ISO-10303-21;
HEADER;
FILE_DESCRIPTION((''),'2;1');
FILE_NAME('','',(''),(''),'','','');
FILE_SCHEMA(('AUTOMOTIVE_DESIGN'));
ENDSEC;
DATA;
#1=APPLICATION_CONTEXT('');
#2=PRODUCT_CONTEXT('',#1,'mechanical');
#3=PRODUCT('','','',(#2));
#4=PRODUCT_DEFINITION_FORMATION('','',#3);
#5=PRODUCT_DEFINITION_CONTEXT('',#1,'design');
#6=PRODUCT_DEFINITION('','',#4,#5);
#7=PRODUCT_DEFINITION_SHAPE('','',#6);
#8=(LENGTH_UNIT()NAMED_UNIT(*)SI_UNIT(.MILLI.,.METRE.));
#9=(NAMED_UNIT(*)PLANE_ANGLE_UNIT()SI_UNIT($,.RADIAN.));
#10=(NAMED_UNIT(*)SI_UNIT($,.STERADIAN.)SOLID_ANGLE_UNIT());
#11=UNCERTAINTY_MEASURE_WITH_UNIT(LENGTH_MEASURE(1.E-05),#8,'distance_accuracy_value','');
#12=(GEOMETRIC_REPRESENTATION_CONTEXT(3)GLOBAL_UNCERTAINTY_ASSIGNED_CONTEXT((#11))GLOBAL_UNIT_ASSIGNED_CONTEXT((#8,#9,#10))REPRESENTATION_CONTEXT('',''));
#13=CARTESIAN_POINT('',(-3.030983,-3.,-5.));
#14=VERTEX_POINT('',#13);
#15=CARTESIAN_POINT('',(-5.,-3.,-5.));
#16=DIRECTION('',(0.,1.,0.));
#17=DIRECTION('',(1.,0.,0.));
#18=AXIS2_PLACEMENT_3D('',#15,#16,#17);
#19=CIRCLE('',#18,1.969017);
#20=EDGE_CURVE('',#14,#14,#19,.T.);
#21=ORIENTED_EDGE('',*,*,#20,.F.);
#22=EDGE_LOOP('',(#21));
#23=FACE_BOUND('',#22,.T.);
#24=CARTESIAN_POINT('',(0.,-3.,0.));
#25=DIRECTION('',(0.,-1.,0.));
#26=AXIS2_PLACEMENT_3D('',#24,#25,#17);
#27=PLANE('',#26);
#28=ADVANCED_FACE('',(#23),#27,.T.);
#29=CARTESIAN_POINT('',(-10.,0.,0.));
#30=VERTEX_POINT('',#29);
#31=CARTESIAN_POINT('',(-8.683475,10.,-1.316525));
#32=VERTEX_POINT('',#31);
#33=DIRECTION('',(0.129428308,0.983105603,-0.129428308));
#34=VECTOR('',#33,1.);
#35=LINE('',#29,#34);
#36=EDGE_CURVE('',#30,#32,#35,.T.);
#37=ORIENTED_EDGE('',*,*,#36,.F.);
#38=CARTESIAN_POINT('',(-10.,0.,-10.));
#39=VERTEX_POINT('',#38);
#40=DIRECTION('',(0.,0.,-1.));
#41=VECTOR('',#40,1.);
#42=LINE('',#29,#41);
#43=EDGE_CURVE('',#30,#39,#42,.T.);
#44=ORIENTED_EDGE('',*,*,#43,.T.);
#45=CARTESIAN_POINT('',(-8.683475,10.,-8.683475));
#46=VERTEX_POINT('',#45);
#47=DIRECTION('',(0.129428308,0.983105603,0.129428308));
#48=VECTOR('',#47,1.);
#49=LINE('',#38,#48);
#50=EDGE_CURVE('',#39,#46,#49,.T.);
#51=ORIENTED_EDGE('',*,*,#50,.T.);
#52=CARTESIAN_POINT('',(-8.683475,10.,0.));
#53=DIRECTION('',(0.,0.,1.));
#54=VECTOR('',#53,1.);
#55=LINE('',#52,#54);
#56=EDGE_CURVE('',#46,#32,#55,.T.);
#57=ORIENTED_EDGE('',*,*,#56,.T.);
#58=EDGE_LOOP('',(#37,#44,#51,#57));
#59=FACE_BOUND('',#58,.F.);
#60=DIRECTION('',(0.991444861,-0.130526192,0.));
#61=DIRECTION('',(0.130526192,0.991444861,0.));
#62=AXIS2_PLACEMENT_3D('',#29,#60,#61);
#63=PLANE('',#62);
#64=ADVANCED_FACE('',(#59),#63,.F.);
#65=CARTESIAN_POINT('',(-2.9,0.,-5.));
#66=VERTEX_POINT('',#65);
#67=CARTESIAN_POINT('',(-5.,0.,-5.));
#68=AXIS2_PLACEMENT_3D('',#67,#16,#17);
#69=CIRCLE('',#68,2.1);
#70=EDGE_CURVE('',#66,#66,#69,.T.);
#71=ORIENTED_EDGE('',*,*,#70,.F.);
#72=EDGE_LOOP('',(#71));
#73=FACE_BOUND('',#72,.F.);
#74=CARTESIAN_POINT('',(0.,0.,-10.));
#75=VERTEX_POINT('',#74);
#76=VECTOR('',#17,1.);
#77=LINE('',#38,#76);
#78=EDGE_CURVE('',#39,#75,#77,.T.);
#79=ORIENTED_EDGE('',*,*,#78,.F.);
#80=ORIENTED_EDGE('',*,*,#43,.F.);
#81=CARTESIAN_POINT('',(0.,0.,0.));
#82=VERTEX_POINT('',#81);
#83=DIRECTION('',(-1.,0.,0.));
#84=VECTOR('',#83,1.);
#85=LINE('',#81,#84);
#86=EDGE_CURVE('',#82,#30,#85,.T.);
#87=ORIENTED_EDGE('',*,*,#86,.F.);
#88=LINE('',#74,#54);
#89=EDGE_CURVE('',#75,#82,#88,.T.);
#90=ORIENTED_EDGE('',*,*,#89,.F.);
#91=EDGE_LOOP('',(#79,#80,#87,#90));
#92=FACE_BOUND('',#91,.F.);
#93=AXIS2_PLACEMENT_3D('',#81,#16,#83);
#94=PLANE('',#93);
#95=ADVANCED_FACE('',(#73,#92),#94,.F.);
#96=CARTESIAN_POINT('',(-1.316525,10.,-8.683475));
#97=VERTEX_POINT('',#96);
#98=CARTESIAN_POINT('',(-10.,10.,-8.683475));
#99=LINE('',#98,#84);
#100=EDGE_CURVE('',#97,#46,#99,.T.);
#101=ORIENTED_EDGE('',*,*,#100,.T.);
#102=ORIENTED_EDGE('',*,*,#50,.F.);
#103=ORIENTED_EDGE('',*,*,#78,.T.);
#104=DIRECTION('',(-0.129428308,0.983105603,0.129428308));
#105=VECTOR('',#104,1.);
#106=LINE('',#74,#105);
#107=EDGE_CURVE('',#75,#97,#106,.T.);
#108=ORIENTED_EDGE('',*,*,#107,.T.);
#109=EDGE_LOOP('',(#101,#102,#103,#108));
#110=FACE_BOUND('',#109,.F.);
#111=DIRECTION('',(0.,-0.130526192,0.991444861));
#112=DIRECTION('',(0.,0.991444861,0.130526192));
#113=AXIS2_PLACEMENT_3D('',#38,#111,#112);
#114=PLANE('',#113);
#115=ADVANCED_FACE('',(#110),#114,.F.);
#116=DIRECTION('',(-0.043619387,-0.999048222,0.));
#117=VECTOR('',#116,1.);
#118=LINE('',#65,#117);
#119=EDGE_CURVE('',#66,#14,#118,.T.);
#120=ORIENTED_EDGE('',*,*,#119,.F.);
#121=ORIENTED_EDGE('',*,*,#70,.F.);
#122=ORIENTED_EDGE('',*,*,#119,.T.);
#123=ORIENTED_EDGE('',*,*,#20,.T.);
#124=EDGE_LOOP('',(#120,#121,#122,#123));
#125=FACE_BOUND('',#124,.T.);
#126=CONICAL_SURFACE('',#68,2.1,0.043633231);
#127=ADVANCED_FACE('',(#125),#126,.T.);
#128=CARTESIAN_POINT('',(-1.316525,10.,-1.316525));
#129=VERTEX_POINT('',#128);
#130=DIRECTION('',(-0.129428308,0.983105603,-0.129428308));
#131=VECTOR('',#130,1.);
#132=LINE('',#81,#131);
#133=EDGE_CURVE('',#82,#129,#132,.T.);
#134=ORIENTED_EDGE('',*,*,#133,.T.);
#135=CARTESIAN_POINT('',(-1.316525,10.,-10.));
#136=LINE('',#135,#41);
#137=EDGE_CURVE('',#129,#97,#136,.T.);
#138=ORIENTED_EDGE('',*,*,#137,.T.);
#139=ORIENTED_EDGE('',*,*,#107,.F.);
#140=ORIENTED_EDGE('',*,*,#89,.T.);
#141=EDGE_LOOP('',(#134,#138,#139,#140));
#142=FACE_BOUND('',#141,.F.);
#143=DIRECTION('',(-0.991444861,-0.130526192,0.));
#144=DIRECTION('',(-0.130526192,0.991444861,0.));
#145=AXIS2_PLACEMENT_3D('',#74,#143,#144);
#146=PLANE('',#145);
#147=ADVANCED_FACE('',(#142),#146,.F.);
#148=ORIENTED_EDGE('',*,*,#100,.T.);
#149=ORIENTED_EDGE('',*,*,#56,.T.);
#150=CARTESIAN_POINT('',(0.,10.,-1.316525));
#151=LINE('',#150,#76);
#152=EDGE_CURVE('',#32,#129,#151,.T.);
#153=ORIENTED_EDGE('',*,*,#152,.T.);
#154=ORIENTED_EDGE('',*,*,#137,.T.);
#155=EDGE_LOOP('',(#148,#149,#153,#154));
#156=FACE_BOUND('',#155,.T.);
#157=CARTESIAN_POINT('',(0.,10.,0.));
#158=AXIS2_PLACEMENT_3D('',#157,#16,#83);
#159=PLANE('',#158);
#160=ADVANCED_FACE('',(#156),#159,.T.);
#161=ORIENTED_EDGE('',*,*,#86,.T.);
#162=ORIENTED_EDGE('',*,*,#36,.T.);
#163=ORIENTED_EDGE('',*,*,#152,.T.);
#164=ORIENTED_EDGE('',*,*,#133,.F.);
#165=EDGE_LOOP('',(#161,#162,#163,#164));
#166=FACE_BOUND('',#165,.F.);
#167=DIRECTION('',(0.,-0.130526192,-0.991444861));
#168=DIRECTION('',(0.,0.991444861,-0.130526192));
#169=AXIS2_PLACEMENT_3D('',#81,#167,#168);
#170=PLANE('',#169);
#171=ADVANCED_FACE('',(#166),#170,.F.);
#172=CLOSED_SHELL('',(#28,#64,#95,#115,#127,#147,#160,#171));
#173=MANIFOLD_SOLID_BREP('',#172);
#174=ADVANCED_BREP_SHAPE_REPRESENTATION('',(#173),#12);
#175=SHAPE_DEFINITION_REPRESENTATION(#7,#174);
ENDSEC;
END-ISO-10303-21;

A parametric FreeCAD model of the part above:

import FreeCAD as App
import Part
import Sketcher
from FreeCAD import Vector
Q = App.Units.Quantity

doc = App.newDocument("Part")
body = doc.addObject("PartDesign::Body", "Body")

# Sketch on XZ plane
sketch1 = body.newObject("Sketcher::SketchObject", "Sketch")
sketch1.AttachmentSupport = (doc.getObject("XZ_Plane"), [""])
sketch1.MapMode = "FlatFace"
sketch1.addGeometry([
    Part.LineSegment(Vector(-10, 0, 0), Vector(0, 0, 0)),
    Part.LineSegment(Vector(0, 0, 0), Vector(0, -10, 0)),
    Part.LineSegment(Vector(0, -10, 0), Vector(-10, -10, 0)),
    Part.LineSegment(Vector(-10, -10, 0), Vector(-10, 0, 0)),
], False)
sketch1.addConstraint([
    Sketcher.Constraint("Coincident", 0, 2, 1, 1),
    Sketcher.Constraint("Coincident", 1, 2, 2, 1),
    Sketcher.Constraint("Coincident", 2, 2, 3, 1),
    Sketcher.Constraint("Coincident", 3, 2, 0, 1),
    Sketcher.Constraint("Horizontal", 0),
    Sketcher.Constraint("Vertical", 1),
    Sketcher.Constraint("Horizontal", 2),
    Sketcher.Constraint("Vertical", 3),
    Sketcher.Constraint("Coincident", 0, 2, -1, 1),
    Sketcher.Constraint("Equal", 2, 1),
    Sketcher.Constraint("DistanceX", 0, 1, 0, 2, Q("10 mm")),
])
pad1 = body.newObject("PartDesign::Pad", "Pad")
pad1.Profile = sketch1
pad1.Length = 10
pad1.Reversed = True
pad1.TaperAngle = -7.5

# Sketch on XZ plane
sketch2 = body.newObject("Sketcher::SketchObject", "Sketch001")
sketch2.AttachmentSupport = (doc.getObject("XZ_Plane"), [""])
sketch2.MapMode = "FlatFace"
sketch2.addGeometry(Part.Circle(Vector(-5, -5, 0), Vector(0, 0, 1), 2.1), False)
sketch2.addConstraint([
    Sketcher.Constraint("Diameter", 0, Q("4.2 mm")),
    Sketcher.Constraint("DistanceX", 0, 3, -1, 1, Q("5 mm")),
    Sketcher.Constraint("DistanceY", 0, 3, -1, 1, Q("5 mm")),
])
pad2 = body.newObject("PartDesign::Pad", "Pad001")
pad2.Profile = sketch2
pad2.Length = 3
pad2.TaperAngle = -2.5

doc.recompute()
